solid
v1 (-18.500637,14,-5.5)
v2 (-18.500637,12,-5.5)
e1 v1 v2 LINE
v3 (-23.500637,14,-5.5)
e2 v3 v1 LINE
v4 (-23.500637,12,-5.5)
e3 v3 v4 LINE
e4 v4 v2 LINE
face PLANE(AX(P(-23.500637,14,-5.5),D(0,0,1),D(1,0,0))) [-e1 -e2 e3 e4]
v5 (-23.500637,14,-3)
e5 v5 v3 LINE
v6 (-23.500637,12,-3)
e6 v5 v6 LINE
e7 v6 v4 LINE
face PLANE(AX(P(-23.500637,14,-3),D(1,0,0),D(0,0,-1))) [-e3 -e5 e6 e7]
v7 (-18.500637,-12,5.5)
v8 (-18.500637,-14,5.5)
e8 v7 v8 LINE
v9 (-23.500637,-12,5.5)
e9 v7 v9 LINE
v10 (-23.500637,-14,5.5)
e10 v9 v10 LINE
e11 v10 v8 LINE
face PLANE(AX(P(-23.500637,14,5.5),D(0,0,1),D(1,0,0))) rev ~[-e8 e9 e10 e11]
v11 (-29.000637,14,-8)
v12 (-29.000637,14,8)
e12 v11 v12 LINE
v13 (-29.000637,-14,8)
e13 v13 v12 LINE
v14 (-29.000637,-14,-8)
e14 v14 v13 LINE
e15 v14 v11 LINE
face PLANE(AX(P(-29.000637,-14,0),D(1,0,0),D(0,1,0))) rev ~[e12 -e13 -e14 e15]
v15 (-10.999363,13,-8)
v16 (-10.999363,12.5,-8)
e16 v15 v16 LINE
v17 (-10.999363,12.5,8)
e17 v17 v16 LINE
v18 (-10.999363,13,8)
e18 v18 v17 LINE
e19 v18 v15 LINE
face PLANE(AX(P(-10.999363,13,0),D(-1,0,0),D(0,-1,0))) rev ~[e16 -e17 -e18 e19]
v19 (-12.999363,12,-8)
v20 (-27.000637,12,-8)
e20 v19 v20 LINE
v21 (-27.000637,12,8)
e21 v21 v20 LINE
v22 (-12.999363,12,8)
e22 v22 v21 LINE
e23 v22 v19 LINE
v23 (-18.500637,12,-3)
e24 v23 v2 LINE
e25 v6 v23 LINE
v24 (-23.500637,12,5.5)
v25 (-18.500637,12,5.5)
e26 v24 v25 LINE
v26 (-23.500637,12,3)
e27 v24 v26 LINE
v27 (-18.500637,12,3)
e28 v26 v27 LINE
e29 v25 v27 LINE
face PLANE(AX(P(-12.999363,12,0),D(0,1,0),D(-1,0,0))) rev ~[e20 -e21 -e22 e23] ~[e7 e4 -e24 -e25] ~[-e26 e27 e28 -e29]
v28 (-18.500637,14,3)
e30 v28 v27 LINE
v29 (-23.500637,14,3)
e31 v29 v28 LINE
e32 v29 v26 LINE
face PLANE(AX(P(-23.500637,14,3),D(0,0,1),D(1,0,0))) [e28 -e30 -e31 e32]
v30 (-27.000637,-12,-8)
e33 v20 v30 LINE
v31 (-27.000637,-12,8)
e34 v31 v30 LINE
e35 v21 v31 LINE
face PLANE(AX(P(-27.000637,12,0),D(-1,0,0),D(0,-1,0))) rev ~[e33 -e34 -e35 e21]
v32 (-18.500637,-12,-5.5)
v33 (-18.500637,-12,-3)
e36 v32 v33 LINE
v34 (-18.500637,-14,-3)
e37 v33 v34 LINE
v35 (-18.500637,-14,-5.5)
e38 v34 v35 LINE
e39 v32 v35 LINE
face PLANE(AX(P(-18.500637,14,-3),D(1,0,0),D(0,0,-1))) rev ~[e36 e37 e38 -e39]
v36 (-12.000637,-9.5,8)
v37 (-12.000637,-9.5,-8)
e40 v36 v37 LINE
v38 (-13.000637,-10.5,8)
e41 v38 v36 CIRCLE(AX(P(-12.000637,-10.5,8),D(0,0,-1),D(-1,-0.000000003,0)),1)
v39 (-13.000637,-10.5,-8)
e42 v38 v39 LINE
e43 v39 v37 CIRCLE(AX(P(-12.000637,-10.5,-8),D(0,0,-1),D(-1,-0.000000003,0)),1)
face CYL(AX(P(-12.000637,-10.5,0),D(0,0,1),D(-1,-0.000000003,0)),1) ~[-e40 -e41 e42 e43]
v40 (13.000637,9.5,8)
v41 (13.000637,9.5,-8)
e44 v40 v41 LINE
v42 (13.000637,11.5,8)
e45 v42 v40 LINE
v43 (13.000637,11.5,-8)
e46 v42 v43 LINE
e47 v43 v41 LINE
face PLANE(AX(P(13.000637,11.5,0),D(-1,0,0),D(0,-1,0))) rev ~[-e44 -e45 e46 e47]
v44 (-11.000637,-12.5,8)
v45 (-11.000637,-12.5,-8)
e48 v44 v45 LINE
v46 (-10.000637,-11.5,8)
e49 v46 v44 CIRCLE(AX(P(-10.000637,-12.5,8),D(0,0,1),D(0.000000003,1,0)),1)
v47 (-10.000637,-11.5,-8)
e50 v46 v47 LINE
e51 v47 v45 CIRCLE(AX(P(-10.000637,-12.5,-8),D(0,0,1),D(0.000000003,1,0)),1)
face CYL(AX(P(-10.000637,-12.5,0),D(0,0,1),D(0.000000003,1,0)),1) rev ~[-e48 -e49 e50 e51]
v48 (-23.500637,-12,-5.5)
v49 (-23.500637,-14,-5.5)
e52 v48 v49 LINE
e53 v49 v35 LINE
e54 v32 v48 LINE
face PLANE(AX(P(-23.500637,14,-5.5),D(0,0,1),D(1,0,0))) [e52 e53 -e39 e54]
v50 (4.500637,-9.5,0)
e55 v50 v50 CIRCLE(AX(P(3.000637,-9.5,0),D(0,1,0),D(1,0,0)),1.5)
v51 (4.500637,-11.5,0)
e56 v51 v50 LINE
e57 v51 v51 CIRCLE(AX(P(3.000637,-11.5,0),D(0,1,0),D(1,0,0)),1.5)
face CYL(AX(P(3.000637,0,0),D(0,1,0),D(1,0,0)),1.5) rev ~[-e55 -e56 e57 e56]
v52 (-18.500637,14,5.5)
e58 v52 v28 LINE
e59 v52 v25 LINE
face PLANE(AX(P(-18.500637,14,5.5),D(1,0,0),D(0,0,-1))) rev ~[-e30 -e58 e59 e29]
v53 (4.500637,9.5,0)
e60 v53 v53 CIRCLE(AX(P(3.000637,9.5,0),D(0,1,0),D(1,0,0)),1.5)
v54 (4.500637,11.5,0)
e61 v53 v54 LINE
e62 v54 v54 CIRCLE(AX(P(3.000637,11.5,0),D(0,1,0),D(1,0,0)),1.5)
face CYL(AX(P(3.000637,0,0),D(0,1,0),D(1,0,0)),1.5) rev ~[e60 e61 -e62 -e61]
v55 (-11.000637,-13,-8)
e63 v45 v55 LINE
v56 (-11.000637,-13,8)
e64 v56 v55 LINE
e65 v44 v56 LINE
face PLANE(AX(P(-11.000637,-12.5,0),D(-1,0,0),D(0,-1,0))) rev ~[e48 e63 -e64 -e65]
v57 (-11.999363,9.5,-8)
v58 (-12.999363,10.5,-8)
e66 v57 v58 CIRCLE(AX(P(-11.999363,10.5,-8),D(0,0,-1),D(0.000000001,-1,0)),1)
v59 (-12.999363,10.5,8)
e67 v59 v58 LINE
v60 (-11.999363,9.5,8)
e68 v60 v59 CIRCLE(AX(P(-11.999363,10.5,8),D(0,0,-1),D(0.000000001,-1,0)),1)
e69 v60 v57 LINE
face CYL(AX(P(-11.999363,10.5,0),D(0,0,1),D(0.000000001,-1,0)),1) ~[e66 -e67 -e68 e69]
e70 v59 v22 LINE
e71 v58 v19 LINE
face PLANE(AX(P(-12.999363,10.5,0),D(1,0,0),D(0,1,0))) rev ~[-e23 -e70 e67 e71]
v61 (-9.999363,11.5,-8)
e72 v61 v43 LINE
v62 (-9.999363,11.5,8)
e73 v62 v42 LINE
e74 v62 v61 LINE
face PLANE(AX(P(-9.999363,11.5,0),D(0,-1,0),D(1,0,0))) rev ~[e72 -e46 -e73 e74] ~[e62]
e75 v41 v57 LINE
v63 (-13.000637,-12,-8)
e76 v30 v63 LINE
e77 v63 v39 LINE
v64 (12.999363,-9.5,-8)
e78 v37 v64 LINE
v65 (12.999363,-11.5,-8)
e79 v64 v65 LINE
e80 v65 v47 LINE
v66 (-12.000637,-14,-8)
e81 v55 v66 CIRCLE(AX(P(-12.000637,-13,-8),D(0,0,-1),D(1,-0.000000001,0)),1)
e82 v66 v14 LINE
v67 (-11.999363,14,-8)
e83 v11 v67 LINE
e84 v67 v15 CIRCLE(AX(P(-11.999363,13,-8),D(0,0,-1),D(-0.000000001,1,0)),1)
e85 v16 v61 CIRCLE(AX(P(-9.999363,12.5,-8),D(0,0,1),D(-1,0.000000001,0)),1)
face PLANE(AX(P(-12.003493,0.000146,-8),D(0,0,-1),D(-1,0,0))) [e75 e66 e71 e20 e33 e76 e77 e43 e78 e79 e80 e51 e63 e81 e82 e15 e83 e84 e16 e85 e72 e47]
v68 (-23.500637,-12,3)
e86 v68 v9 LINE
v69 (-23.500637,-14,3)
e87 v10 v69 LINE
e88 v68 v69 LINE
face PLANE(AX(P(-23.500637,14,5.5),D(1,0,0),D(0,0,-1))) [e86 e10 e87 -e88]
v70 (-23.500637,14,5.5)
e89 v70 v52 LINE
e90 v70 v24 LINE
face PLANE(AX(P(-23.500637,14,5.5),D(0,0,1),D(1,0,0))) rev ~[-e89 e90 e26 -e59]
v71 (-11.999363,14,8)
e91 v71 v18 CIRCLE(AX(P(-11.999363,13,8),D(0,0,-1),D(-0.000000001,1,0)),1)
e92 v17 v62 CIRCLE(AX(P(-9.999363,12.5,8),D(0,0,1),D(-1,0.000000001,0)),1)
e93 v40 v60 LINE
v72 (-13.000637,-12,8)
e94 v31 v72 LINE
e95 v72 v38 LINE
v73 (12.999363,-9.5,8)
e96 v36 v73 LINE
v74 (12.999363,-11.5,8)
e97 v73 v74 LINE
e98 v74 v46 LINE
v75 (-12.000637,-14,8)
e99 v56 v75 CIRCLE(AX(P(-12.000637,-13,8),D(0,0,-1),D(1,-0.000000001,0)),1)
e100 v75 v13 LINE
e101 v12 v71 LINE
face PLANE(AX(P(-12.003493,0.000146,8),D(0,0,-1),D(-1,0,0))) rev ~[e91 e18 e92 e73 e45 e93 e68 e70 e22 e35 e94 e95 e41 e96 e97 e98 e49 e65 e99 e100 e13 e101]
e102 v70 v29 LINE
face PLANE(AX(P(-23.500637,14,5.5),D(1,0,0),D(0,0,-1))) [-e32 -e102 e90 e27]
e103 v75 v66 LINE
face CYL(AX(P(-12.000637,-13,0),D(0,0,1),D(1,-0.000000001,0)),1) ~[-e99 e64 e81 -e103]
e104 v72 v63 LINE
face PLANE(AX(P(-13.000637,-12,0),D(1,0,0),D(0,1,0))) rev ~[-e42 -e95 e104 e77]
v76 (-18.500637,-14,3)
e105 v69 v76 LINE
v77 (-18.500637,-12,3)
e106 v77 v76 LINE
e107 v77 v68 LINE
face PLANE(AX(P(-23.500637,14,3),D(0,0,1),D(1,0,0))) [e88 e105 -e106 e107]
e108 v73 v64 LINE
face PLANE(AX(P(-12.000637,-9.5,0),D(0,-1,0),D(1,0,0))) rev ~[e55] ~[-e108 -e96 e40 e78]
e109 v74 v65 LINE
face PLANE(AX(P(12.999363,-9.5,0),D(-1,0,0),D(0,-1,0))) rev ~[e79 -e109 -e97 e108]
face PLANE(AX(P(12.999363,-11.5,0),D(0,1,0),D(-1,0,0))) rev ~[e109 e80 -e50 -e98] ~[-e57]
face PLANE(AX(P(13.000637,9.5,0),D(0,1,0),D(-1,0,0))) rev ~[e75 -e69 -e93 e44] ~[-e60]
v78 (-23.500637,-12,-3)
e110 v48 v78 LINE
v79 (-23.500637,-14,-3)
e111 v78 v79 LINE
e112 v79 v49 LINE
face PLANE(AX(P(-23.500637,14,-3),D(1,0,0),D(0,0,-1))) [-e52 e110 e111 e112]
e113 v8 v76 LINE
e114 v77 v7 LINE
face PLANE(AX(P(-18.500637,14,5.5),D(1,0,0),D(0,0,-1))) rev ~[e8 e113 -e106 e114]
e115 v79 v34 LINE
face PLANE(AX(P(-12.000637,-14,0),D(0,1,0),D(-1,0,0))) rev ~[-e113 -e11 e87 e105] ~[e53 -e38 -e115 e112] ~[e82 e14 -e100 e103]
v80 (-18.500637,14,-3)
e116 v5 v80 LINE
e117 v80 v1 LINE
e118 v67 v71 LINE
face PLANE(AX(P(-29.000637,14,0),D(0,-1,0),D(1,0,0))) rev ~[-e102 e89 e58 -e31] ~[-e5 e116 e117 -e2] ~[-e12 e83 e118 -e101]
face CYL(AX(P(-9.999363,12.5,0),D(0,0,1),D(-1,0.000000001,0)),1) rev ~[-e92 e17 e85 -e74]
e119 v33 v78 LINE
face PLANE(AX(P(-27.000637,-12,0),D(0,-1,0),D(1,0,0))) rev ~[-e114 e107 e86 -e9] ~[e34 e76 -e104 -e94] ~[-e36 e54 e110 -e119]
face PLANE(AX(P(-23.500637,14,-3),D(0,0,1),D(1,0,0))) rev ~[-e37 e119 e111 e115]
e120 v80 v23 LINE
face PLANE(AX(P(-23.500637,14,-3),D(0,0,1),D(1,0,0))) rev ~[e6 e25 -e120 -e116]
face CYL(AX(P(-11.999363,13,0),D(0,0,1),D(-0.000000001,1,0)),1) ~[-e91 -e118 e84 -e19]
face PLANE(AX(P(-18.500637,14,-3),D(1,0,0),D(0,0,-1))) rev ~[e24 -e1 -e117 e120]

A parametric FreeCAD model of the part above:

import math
import FreeCAD as App
import Part
import Sketcher

doc = App.newDocument("Part")
params = doc.addObject("Spreadsheet::Sheet", "Params")
for row, (alias, value) in enumerate([
    ("sketch1_radius", "1 mm"),
    ("sketch1_width", "17 mm"),
    ("sketch1_width2", "23 mm"),
    ("sketch1_width3", "14 mm"),
    ("sketch1_height", "28 mm"),
    ("pad1_length", "16 mm"),
    ("sketch2_diameter", "3 mm"),
    ("pocket1_length", "36 mm"),
    ("sketch3_width", "5 mm"),
    ("sketch3_height", "2.5 mm"),
    ("pocket2_length", "36 mm"),
], start=1):
    params.set(f"A{row}", alias)
    params.set(f"B{row}", "=" + value)
    params.setAlias(f"B{row}", alias)

body = doc.addObject("PartDesign::Body", "Body")

sketch1 = doc.addObject("Sketcher::SketchObject", "Sketch")
body.addObject(sketch1)
sketch1.AttachmentSupport = (doc.XY_Plane, [""])
sketch1.MapMode = "FlatFace"
sketch1.addGeometry([
    Part.ArcOfCircle(Part.Circle(App.Vector(-11.999363, 13, 0), App.Vector(0, 0, 1), 1), math.radians(0), math.radians(90)),
    Part.LineSegment(App.Vector(-11.999363, 14, 0), App.Vector(-29.000637, 14, 0)),
    Part.LineSegment(App.Vector(-29.000637, 14, 0), App.Vector(-29.000637, -14, 0)),
    Part.LineSegment(App.Vector(-29.000637, -14, 0), App.Vector(-12.000637, -14, 0)),
    Part.ArcOfCircle(Part.Circle(App.Vector(-12.000637, -13, 0), App.Vector(0, 0, 1), 1), math.radians(-90), math.radians(0)),
    Part.LineSegment(App.Vector(-11.000637, -13, 0), App.Vector(-11.000637, -12.5, 0)),
    Part.ArcOfCircle(Part.Circle(App.Vector(-10.000637, -12.5, 0), App.Vector(0, 0, 1), 1), math.radians(90), math.radians(180)),
    Part.LineSegment(App.Vector(-10.000637, -11.5, 0), App.Vector(12.999363, -11.5, 0)),
    Part.LineSegment(App.Vector(12.999363, -11.5, 0), App.Vector(12.999363, -9.5, 0)),
    Part.LineSegment(App.Vector(12.999363, -9.5, 0), App.Vector(-12.000637, -9.5, 0)),
    Part.ArcOfCircle(Part.Circle(App.Vector(-12.000637, -10.5, 0), App.Vector(0, 0, 1), 1), math.radians(90), math.radians(180)),
    Part.LineSegment(App.Vector(-13.000637, -10.5, 0), App.Vector(-13.000637, -12, 0)),
    Part.LineSegment(App.Vector(-13.000637, -12, 0), App.Vector(-27.000637, -12, 0)),
    Part.LineSegment(App.Vector(-27.000637, -12, 0), App.Vector(-27.000637, 12, 0)),
    Part.LineSegment(App.Vector(-27.000637, 12, 0), App.Vector(-12.999363, 12, 0)),
    Part.LineSegment(App.Vector(-12.999363, 12, 0), App.Vector(-12.999363, 10.5, 0)),
    Part.ArcOfCircle(Part.Circle(App.Vector(-11.999363, 10.5, 0), App.Vector(0, 0, 1), 1), math.radians(180), math.radians(270)),
    Part.LineSegment(App.Vector(-11.999363, 9.5, 0), App.Vector(13.000637, 9.5, 0)),
    Part.LineSegment(App.Vector(13.000637, 9.5, 0), App.Vector(13.000637, 11.5, 0)),
    Part.LineSegment(App.Vector(13.000637, 11.5, 0), App.Vector(-9.999363, 11.5, 0)),
    Part.ArcOfCircle(Part.Circle(App.Vector(-9.999363, 12.5, 0), App.Vector(0, 0, 1), 1), math.radians(180), math.radians(270)),
    Part.LineSegment(App.Vector(-10.999363, 12.5, 0), App.Vector(-10.999363, 13, 0)),
], False)
sketch1.addConstraint([
    Sketcher.Constraint("Tangent", 0, 2, 1, 1),
    Sketcher.Constraint("Coincident", 1, 2, 2, 1),
    Sketcher.Constraint("Coincident", 2, 2, 3, 1),
    Sketcher.Constraint("Tangent", 3, 2, 4, 1),
    Sketcher.Constraint("Tangent", 4, 2, 5, 1),
    Sketcher.Constraint("Tangent", 5, 2, 6, 2),
    Sketcher.Constraint("Tangent", 6, 1, 7, 1),
    Sketcher.Constraint("Coincident", 7, 2, 8, 1),
    Sketcher.Constraint("Coincident", 8, 2, 9, 1),
    Sketcher.Constraint("Tangent", 9, 2, 10, 1),
    Sketcher.Constraint("Tangent", 10, 2, 11, 1),
    Sketcher.Constraint("Coincident", 11, 2, 12, 1),
    Sketcher.Constraint("Coincident", 12, 2, 13, 1),
    Sketcher.Constraint("Coincident", 13, 2, 14, 1),
    Sketcher.Constraint("Coincident", 14, 2, 15, 1),
    Sketcher.Constraint("Tangent", 15, 2, 16, 1),
    Sketcher.Constraint("Tangent", 16, 2, 17, 1),
    Sketcher.Constraint("Coincident", 17, 2, 18, 1),
    Sketcher.Constraint("Coincident", 18, 2, 19, 1),
    Sketcher.Constraint("Tangent", 19, 2, 20, 2),
    Sketcher.Constraint("Tangent", 20, 1, 21, 1),
    Sketcher.Constraint("Tangent", 21, 2, 0, 1),
    Sketcher.Constraint("Horizontal", 1),
    Sketcher.Constraint("Vertical", 2),
    Sketcher.Constraint("Horizontal", 3),
    Sketcher.Constraint("Vertical", 5),
    Sketcher.Constraint("Horizontal", 7),
    Sketcher.Constraint("Vertical", 8),
    Sketcher.Constraint("Horizontal", 9),
    Sketcher.Constraint("Vertical", 11),
    Sketcher.Constraint("Horizontal", 12),
    Sketcher.Constraint("Vertical", 13),
    Sketcher.Constraint("Horizontal", 14),
    Sketcher.Constraint("Vertical", 15),
    Sketcher.Constraint("Horizontal", 17),
    Sketcher.Constraint("Vertical", 18),
    Sketcher.Constraint("Horizontal", 19),
    Sketcher.Constraint("Vertical", 21),
    Sketcher.Constraint("Equal", 0, 4),
    Sketcher.Constraint("Equal", 4, 6),
    Sketcher.Constraint("Equal", 6, 10),
    Sketcher.Constraint("Equal", 10, 16),
    Sketcher.Constraint("Equal", 16, 20),
    Sketcher.Constraint("Vertical", 4, 3, 10, 3),
    Sketcher.Constraint("Vertical", 0, 3, 16, 3),
    Sketcher.Constraint("Equal", 9, 17),
    Sketcher.Constraint("Equal", 11, 15),
    Sketcher.Constraint("Equal", 8, 18),
    Sketcher.Constraint("Equal", 5, 21),
    Sketcher.Constraint("Radius", 0, 1.0),
    Sketcher.Constraint("DistanceX", 3, 1, 3, 2, 17.0),
    Sketcher.Constraint("DistanceX", 7, 1, 7, 2, 23.0),
    Sketcher.Constraint("DistanceX", 12, 2, 12, 1, 14.0),
    Sketcher.Constraint("DistanceY", 2, 2, 2, 1, 28.0),
    Sketcher.Constraint("DistanceY", 8, 1, 8, 2, 2.0),
    Sketcher.Constraint("DistanceY", 13, 1, 13, 2, 24.0),
    Sketcher.Constraint("DistanceY", 5, 1, 5, 2, 0.5),
    Sketcher.Constraint("DistanceY", -1, 1, 0, 3, 13.0),
    Sketcher.Constraint("DistanceX", 1, 2, 1, 1, 17.001274),
    Sketcher.Constraint("DistanceX", 0, 3, -1, 1, 11.999363),
])
sketch1.setExpression("Constraints[49]", "Params.sketch1_radius")
sketch1.setExpression("Constraints[50]", "Params.sketch1_width")
sketch1.setExpression("Constraints[51]", "Params.sketch1_width2")
sketch1.setExpression("Constraints[52]", "Params.sketch1_width3")
sketch1.setExpression("Constraints[53]", "Params.sketch1_height")
pad1 = doc.addObject("PartDesign::Pad", "Pad")
body.addObject(pad1)
pad1.Profile = sketch1
pad1.setExpression("Length", "Params.pad1_length")
pad1.Midplane = True

sketch2 = doc.addObject("Sketcher::SketchObject", "Sketch001")
body.addObject(sketch2)
sketch2.AttachmentSupport = (doc.XZ_Plane, [""])
sketch2.MapMode = "FlatFace"
sketch2.addGeometry(Part.Circle(App.Vector(3.000637, 0, 0), App.Vector(0, 0, 1), 1.5), False)
sketch2.addConstraint([
    Sketcher.Constraint("PointOnObject", 0, 3, -1),
    Sketcher.Constraint("Diameter", 0, 3.0),
    Sketcher.Constraint("DistanceX", -1, 1, 0, 3, 3.000637),
])
sketch2.setExpression("Constraints[1]", "Params.sketch2_diameter")
pocket1 = doc.addObject("PartDesign::Pocket", "Pocket")
body.addObject(pocket1)
pocket1.Profile = sketch2
pocket1.setExpression("Length", "Params.pocket1_length")
pocket1.Midplane = True

sketch3 = doc.addObject("Sketcher::SketchObject", "Sketch002")
body.addObject(sketch3)
sketch3.AttachmentSupport = (doc.XZ_Plane, [""])
sketch3.MapMode = "FlatFace"
sketch3.AttachmentOffset = App.Placement(App.Vector(0, 0, -14), App.Rotation())
sketch3.addGeometry([
    Part.LineSegment(App.Vector(-23.500637, 3, 0), App.Vector(-23.500637, 5.5, 0)),
    Part.LineSegment(App.Vector(-23.500637, 5.5, 0), App.Vector(-18.500637, 5.5, 0)),
    Part.LineSegment(App.Vector(-18.500637, 5.5, 0), App.Vector(-18.500637, 3, 0)),
    Part.LineSegment(App.Vector(-18.500637, 3, 0), App.Vector(-23.500637, 3, 0)),
    Part.LineSegment(App.Vector(-23.500637, -5.5, 0), App.Vector(-23.500637, -3, 0)),
    Part.LineSegment(App.Vector(-23.500637, -3, 0), App.Vector(-18.500637, -3, 0)),
    Part.LineSegment(App.Vector(-18.500637, -3, 0), App.Vector(-18.500637, -5.5, 0)),
    Part.LineSegment(App.Vector(-18.500637, -5.5, 0), App.Vector(-23.500637, -5.5, 0)),
], False)
sketch3.addConstraint([
    Sketcher.Constraint("Coincident", 0, 2, 1, 1),
    Sketcher.Constraint("Coincident", 1, 2, 2, 1),
    Sketcher.Constraint("Coincident", 2, 2, 3, 1),
    Sketcher.Constraint("Coincident", 3, 2, 0, 1),
    Sketcher.Constraint("Coincident", 4, 2, 5, 1),
    Sketcher.Constraint("Coincident", 5, 2, 6, 1),
    Sketcher.Constraint("Coincident", 6, 2, 7, 1),
    Sketcher.Constraint("Coincident", 7, 2, 4, 1),
    Sketcher.Constraint("Vertical", 0),
    Sketcher.Constraint("Horizontal", 1),
    Sketcher.Constraint("Vertical", 2),
    Sketcher.Constraint("Horizontal", 3),
    Sketcher.Constraint("Vertical", 4),
    Sketcher.Constraint("Horizontal", 5),
    Sketcher.Constraint("Vertical", 6),
    Sketcher.Constraint("Horizontal", 7),
    Sketcher.Constraint("Symmetric", 3, 2, 4, 2, -1),
    Sketcher.Constraint("Symmetric", 1, 2, 6, 2, -1),
    Sketcher.Constraint("DistanceX", 1, 1, 1, 2, 5.0),
    Sketcher.Constraint("DistanceY", 0, 1, 0, 2, 2.5),
    Sketcher.Constraint("DistanceY", -1, 1, 2, 2, 3.0),
    Sketcher.Constraint("DistanceX", 0, 2, -1, 1, 23.500637),
])
sketch3.setExpression("Constraints[18]", "Params.sketch3_width")
sketch3.setExpression("Constraints[19]", "Params.sketch3_height")
pocket2 = doc.addObject("PartDesign::Pocket", "Pocket001")
body.addObject(pocket2)
pocket2.Profile = sketch3
pocket2.setExpression("Length", "Params.pocket2_length")
pocket2.Reversed = True

doc.recompute()
